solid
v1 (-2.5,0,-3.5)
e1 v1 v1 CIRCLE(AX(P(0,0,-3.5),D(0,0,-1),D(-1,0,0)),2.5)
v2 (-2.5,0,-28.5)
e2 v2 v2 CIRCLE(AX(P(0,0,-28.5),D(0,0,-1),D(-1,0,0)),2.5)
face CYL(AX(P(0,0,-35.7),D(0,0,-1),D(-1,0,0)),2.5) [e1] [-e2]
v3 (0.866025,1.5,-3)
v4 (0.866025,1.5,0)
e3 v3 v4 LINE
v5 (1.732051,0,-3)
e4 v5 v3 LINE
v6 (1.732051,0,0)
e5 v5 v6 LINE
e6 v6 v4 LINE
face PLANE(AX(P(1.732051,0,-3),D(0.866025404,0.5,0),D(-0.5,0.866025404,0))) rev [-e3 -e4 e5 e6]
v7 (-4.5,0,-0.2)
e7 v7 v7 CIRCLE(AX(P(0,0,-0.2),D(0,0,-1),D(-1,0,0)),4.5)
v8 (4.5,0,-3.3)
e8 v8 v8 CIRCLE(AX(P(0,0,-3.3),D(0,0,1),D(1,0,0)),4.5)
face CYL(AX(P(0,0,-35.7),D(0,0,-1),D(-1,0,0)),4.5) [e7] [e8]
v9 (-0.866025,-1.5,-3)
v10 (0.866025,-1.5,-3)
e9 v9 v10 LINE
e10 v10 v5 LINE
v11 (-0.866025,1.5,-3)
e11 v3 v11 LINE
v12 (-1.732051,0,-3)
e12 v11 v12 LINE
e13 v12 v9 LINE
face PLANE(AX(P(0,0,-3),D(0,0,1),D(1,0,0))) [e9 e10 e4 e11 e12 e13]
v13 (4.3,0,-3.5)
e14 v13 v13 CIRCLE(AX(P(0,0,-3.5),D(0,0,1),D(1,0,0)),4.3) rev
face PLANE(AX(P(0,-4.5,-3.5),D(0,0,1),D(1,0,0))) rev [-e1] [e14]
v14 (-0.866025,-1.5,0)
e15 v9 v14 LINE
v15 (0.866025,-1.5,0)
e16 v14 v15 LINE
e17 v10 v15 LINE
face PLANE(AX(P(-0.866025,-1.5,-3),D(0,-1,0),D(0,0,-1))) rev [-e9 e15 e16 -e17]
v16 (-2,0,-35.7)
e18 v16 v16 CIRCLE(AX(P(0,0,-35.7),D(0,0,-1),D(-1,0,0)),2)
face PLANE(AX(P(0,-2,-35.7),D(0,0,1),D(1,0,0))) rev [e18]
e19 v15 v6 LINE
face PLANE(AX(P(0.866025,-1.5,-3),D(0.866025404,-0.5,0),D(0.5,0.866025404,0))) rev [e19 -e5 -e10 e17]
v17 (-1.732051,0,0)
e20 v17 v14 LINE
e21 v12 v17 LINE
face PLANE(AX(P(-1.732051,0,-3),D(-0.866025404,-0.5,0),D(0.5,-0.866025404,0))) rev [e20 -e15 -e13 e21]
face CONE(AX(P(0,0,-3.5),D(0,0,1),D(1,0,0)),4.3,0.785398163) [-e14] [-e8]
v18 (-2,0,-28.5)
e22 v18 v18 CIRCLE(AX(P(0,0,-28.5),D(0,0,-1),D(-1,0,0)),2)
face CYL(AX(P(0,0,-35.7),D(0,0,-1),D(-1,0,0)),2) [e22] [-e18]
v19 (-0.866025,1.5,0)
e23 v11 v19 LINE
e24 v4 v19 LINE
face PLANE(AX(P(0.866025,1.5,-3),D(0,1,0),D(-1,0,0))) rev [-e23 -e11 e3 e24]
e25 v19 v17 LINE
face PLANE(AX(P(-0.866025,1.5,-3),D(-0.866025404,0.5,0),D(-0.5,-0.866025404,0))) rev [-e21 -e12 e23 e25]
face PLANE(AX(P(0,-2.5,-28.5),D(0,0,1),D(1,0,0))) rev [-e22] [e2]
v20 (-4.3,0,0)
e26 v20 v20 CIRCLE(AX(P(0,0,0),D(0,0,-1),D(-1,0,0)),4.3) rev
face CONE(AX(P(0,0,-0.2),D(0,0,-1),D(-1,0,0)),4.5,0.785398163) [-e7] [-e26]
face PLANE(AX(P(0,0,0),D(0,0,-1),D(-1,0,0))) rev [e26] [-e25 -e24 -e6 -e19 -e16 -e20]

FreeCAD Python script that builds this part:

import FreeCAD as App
import Part
import Sketcher

V = App.Vector
Q = App.Units.Quantity


def edges_at(feature, points):
    """Names of the edges that pass closest to the given points."""
    edges = feature.Shape.Edges
    near = lambda p: min(range(len(edges)), key=lambda i: edges[i].distToShape(Part.Vertex(*p))[0])
    return sorted({f"Edge{near(p) + 1}" for p in points})


def add_polygon(sketch, points):
    """Adds a closed chain of lines whose ends are joined by coincident constraints."""
    first, n = sketch.GeometryCount, len(points)
    for a, b in zip(points, points[1:] + points[:1]):
        sketch.addGeometry(Part.LineSegment(App.Vector(*a, 0), App.Vector(*b, 0)), False)
    for i in range(n):
        sketch.addConstraint(Sketcher.Constraint("Coincident", first + i, 2, first + (i + 1) % n, 1))

doc = App.newDocument("Part")
body = doc.addObject("PartDesign::Body", "Body")

sketch1 = body.newObject("Sketcher::SketchObject", "Sketch")
sketch1.AttachmentSupport = (doc.getObject("YZ_Plane"), [""])
sketch1.MapMode = "FlatFace"
add_polygon(sketch1, [(0, 0), (-4.5, 0), (-4.5, -3.5), (-2.5, -3.5), (-2.5, -28.5), (-2, -28.5), (-2, -35.7), (0, -35.7)])
sketch1.addConstraint(Sketcher.Constraint("Horizontal", 0))
sketch1.addConstraint(Sketcher.Constraint("Vertical", 1))
sketch1.addConstraint(Sketcher.Constraint("Horizontal", 2))
sketch1.addConstraint(Sketcher.Constraint("Vertical", 3))
sketch1.addConstraint(Sketcher.Constraint("Horizontal", 4))
sketch1.addConstraint(Sketcher.Constraint("Vertical", 5))
sketch1.addConstraint(Sketcher.Constraint("Horizontal", 6))
sketch1.addConstraint(Sketcher.Constraint("Vertical", 7))
sketch1.addConstraint(Sketcher.Constraint("Coincident", 7, 2, -1, 1))
sketch1.addConstraint(Sketcher.Constraint("Equal", 2, 6))
sketch1.addConstraint(Sketcher.Constraint("DistanceX", 2, 1, 2, 2, Q("2 mm")))
sketch1.addConstraint(Sketcher.Constraint("DistanceY", 3, 2, 3, 1, Q("25 mm")))
sketch1.addConstraint(Sketcher.Constraint("DistanceX", 0, 2, 0, 1, Q("4.5 mm")))
sketch1.addConstraint(Sketcher.Constraint("DistanceY", 1, 2, 1, 1, Q("3.5 mm")))
sketch1.addConstraint(Sketcher.Constraint("DistanceY", 5, 2, 5, 1, Q("7.2 mm")))
revolution = body.newObject("PartDesign::Revolution", "Revolution")
revolution.Profile = sketch1
revolution.ReferenceAxis = (sketch1, ["V_Axis"])
revolution.Angle = 360

sketch2 = body.newObject("Sketcher::SketchObject", "Sketch001")
sketch2.AttachmentSupport = (doc.getObject("XY_Plane"), [""])
sketch2.MapMode = "FlatFace"
add_polygon(sketch2, [(1.7, 0), (0.9, 1.5), (-0.9, 1.5), (-1.7, 0), (-0.9, -1.5), (0.9, -1.5)])
sketch2.addConstraint(Sketcher.Constraint("Horizontal", 1))
sketch2.addConstraint(Sketcher.Constraint("Horizontal", 4))
sketch2.addConstraint(Sketcher.Constraint("Symmetric", 0, 2, 3, 2, -1, 1))
sketch2.addConstraint(Sketcher.Constraint("Symmetric", 2, 2, 5, 2, -1, 1))
sketch2.addConstraint(Sketcher.Constraint("PointOnObject", 2, 2, -1))
sketch2.addConstraint(Sketcher.Constraint("Parallel", 2, 5))
sketch2.addConstraint(Sketcher.Constraint("Vertical", 1, 2, 3, 2))
sketch2.addConstraint(Sketcher.Constraint("Angle", 0, Q("120 deg")))
sketch2.addConstraint(Sketcher.Constraint("DistanceY", 3, 2, 1, 2, Q("3 mm")))
sketch2.addConstraint(Sketcher.Constraint("DistanceX", 1, 2, 1, 1, Q("1.732051 mm")))
pocket1 = body.newObject("PartDesign::Pocket", "Pocket")
pocket1.Profile = sketch2
pocket1.Length = 3
doc.recompute()

chamfer = body.newObject("PartDesign::Chamfer", "Chamfer")
chamfer.Base = (pocket1, edges_at(pocket1, [(4.5, 0, -3.5), (4.5, 0, 0)]))
chamfer.Size = 0.2

doc.recompute()
